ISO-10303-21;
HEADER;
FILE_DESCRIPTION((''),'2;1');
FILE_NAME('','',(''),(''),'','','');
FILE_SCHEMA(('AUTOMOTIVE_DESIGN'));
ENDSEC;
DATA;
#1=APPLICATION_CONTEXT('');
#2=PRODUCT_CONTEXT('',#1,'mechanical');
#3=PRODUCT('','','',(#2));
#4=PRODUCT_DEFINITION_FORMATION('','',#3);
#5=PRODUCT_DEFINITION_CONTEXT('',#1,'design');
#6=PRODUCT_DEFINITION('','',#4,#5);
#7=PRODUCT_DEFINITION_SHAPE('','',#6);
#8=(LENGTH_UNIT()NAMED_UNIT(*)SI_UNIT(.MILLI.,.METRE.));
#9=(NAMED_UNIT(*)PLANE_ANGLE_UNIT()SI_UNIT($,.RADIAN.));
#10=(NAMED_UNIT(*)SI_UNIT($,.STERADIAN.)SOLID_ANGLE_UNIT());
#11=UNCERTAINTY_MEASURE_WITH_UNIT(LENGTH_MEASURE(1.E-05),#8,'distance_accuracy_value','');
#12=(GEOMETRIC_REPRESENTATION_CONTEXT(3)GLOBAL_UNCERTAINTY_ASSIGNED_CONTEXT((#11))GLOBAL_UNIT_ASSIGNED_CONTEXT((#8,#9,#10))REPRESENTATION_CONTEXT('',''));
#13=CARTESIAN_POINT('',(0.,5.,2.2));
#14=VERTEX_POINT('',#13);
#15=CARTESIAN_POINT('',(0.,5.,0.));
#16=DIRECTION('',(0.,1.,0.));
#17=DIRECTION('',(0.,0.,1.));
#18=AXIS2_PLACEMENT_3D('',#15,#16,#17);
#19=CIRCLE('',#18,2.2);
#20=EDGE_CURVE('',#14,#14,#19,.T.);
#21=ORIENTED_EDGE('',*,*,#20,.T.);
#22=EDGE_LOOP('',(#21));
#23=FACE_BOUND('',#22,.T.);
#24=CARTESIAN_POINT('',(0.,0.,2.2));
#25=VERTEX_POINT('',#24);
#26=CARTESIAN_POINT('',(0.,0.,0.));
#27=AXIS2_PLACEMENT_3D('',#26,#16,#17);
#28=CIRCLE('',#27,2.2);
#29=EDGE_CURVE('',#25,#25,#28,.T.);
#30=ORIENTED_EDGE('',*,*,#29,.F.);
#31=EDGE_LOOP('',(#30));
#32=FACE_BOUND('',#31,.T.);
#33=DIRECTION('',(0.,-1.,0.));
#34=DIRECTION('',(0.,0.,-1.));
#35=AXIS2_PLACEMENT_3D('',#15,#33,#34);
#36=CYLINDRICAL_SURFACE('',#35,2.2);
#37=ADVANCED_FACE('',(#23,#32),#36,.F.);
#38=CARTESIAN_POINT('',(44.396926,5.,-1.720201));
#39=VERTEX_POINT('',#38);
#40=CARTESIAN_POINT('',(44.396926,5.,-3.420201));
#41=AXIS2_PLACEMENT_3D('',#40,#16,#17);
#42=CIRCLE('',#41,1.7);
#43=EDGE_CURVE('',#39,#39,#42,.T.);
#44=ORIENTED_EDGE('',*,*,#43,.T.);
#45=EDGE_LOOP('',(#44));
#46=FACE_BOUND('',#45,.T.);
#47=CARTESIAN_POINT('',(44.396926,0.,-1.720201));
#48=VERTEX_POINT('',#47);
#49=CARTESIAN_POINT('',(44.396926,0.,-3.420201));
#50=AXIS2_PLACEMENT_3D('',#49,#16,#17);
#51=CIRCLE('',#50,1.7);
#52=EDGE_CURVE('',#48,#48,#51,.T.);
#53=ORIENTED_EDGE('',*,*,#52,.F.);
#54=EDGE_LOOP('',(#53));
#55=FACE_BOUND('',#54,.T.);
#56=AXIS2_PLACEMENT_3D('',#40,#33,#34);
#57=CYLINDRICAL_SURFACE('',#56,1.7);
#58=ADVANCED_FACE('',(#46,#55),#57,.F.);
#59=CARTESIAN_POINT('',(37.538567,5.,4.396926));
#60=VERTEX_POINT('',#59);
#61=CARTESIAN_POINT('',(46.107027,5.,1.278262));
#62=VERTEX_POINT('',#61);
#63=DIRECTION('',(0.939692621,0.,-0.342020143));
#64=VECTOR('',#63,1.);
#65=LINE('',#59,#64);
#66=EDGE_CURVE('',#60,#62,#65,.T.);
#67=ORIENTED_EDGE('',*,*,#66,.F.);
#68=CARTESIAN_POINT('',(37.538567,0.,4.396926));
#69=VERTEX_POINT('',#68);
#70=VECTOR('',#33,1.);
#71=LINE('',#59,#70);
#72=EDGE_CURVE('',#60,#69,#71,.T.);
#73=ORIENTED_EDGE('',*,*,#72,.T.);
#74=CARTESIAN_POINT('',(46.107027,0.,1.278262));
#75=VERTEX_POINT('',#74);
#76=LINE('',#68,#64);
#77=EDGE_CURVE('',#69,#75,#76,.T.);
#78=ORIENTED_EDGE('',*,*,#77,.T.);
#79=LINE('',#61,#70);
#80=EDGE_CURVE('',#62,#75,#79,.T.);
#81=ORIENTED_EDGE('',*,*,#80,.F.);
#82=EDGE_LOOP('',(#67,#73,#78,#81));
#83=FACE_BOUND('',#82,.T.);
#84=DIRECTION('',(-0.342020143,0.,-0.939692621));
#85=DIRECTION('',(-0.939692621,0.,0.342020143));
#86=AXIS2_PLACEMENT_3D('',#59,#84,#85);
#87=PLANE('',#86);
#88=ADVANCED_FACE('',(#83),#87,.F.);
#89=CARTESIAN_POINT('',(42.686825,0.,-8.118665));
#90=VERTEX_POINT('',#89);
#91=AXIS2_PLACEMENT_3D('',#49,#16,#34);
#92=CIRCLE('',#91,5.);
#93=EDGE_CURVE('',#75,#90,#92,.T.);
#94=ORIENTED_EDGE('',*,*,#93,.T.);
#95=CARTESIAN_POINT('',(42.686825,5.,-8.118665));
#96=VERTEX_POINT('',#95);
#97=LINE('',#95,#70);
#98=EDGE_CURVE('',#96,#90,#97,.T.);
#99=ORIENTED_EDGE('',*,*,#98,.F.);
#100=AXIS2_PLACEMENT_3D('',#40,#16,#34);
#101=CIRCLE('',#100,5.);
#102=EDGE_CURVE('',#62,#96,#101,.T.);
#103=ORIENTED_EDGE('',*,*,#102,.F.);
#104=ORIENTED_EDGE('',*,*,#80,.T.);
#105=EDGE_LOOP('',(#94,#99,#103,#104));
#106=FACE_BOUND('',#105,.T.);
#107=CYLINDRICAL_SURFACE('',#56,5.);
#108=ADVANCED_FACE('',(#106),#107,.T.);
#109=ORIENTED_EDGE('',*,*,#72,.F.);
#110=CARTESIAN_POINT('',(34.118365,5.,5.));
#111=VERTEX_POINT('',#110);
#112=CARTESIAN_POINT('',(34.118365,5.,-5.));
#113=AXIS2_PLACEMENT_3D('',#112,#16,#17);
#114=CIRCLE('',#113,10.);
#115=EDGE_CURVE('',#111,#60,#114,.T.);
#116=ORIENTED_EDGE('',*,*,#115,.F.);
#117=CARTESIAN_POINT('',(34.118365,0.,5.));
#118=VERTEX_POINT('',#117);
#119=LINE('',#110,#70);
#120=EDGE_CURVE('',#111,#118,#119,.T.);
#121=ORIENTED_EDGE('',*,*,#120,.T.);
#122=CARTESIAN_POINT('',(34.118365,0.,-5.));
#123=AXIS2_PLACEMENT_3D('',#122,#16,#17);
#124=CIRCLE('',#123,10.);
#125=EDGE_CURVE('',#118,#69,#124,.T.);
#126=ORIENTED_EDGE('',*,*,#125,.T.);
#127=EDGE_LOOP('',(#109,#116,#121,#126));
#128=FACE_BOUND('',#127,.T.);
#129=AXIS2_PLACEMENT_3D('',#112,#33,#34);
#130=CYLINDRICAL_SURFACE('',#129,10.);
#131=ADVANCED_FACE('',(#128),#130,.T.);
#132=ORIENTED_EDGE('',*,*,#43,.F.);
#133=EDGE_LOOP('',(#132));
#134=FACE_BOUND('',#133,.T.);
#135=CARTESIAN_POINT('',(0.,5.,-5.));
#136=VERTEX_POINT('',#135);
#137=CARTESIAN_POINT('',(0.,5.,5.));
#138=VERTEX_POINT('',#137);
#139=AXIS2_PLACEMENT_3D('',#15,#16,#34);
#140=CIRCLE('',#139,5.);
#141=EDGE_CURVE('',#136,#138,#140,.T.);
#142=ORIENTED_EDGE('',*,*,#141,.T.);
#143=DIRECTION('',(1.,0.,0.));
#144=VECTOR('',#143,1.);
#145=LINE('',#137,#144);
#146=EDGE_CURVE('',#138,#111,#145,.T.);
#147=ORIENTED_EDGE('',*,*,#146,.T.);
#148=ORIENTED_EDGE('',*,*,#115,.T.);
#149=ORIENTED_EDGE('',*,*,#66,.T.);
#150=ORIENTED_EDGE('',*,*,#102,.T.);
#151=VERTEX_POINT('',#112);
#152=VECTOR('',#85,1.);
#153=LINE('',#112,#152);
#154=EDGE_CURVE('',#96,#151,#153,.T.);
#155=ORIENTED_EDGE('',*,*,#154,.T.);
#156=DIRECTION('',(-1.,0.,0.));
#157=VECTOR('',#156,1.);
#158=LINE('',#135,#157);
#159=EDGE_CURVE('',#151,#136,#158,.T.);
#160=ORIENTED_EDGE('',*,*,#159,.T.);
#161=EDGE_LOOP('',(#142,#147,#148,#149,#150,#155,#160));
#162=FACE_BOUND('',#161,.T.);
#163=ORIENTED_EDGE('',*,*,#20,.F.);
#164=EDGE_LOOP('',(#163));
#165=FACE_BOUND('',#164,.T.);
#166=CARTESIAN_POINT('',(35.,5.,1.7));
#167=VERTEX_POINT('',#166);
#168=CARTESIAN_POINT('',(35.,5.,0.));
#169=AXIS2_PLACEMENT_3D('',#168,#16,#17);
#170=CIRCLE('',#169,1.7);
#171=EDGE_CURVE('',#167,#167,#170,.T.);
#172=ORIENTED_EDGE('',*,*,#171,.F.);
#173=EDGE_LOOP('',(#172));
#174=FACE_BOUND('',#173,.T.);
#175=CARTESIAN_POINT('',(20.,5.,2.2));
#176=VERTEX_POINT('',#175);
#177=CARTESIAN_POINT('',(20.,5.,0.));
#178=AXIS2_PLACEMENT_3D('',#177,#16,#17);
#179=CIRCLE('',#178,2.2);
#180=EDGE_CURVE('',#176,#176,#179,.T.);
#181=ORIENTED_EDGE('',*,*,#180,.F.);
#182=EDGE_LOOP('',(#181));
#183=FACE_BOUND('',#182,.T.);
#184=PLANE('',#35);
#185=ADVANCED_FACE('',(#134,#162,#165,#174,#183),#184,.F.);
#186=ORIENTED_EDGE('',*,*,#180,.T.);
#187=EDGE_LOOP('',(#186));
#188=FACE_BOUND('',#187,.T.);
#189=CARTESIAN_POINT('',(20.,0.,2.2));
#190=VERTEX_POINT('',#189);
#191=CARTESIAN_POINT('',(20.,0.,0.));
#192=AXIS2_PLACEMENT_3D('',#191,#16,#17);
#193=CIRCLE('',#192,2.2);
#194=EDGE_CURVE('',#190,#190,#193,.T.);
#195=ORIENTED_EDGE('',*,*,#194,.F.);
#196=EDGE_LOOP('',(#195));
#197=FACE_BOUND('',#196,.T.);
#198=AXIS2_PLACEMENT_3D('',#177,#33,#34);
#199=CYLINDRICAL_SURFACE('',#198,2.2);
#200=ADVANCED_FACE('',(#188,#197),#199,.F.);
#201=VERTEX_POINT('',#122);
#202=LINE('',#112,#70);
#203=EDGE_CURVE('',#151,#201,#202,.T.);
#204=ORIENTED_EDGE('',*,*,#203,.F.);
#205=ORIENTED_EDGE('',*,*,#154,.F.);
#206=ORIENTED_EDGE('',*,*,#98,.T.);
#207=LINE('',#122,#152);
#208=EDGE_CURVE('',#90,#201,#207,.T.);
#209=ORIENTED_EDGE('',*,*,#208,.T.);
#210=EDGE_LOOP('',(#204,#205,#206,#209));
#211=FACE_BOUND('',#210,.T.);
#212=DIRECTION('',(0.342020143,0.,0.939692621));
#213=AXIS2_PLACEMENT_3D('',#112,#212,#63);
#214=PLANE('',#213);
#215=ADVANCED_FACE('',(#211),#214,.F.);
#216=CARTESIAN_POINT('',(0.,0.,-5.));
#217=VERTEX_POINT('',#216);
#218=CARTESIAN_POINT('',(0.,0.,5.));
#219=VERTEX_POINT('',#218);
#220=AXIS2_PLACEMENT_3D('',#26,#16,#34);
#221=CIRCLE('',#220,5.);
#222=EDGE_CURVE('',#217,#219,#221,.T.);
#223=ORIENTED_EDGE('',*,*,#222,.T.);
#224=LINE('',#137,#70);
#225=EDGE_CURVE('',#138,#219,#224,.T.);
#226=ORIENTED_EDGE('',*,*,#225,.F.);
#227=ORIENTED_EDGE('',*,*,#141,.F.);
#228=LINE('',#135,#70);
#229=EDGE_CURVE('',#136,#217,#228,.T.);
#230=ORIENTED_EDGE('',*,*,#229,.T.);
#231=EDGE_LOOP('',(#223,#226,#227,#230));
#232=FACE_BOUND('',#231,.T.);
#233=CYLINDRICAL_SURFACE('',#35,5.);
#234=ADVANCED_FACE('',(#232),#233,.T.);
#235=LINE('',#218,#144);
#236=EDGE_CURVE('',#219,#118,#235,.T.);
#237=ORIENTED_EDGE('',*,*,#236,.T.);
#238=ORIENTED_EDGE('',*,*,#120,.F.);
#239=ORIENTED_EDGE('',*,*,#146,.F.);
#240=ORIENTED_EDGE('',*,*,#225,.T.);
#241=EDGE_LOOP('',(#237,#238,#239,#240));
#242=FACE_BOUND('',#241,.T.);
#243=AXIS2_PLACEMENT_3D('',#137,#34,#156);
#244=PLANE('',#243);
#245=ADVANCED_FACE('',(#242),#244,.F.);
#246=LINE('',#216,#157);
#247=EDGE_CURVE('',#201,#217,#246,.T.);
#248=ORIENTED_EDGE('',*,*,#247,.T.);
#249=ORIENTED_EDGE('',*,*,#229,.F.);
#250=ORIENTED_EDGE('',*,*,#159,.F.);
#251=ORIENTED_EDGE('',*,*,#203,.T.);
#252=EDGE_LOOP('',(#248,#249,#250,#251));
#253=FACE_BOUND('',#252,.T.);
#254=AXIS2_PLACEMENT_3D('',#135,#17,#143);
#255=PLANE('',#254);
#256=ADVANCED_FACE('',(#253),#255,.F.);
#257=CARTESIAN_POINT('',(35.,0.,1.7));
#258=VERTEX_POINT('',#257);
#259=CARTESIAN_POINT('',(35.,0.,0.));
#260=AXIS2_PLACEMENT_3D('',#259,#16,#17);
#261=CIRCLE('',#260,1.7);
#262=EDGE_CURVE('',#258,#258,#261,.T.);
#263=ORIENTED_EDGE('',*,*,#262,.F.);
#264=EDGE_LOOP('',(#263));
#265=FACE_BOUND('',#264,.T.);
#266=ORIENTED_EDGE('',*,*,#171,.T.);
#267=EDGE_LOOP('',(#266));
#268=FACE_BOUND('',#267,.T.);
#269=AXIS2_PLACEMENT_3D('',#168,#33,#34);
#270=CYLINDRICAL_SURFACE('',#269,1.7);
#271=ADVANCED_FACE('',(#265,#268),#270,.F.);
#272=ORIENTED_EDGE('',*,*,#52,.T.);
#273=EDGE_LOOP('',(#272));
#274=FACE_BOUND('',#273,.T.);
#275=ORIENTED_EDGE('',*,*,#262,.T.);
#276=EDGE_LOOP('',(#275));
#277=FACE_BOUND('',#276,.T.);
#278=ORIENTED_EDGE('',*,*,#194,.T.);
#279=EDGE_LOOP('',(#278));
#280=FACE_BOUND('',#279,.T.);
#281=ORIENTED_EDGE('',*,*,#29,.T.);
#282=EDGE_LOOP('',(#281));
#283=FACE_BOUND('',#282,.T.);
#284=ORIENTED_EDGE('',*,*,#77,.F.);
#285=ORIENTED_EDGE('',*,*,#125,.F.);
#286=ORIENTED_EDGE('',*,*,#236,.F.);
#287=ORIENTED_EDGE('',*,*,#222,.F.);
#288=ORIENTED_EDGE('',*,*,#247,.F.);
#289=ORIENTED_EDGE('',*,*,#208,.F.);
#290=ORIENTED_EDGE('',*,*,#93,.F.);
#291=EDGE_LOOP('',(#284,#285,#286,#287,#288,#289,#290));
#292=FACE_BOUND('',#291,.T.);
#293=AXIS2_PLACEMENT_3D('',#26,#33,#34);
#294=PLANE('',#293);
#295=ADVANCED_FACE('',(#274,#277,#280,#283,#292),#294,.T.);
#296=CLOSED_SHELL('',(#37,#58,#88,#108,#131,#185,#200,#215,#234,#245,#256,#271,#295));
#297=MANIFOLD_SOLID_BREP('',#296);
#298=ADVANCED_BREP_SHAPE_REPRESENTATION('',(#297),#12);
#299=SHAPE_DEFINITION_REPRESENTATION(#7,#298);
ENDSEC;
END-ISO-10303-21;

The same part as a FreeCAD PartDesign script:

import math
import FreeCAD as App
import Part
import Sketcher
from FreeCAD import Vector
Q = App.Units.Quantity

doc = App.newDocument("Part")
params = doc.addObject("Spreadsheet::Sheet", "Params")
for row, (alias, value) in enumerate([
    ("sketch1_radius", "5 mm"),
    ("sketch1_diameter", "3.4 mm"),
    ("sketch1_diameter2", "4.4 mm"),
    ("pad1_length", "5 mm"),
], start=1):
    params.set(f"A{row}", alias)
    params.set(f"B{row}", "=" + value)
    params.setAlias(f"B{row}", alias)

body = doc.addObject("PartDesign::Body", "Body")

# Sketch on XZ plane
sketch1 = body.newObject("Sketcher::SketchObject", "Sketch")
sketch1.AttachmentSupport = (doc.getObject("XZ_Plane"), [""])
sketch1.MapMode = "FlatFace"
sketch1.addGeometry([
    Part.LineSegment(Vector(34.118365, -5, 0), Vector(0, -5, 0)),  # 0
    Part.ArcOfCircle(Part.Circle(Vector(0, 0, 0), Vector(0, 0, 1), 5), math.radians(90), math.radians(270)),  # 1
    Part.LineSegment(Vector(0, 5, 0), Vector(34.118365, 5, 0)),  # 2
    Part.ArcOfCircle(Part.Circle(Vector(34.118365, -5, 0), Vector(0, 0, 1), 10), math.radians(70), math.radians(90)),  # 3
    Part.LineSegment(Vector(37.538567, 4.396926, 0), Vector(46.107027, 1.278262, 0)),  # 4
    Part.ArcOfCircle(Part.Circle(Vector(44.396926, -3.420201, 0), Vector(0, 0, 1), 5), math.radians(-110), math.radians(70)),  # 5
    Part.LineSegment(Vector(42.686825, -8.118665, 0), Vector(34.118365, -5, 0)),  # 6
    Part.Circle(Vector(35, 0, 0), Vector(0, 0, 1), 1.7),  # 7
    Part.Circle(Vector(20, 0, 0), Vector(0, 0, 1), 2.2),  # 8
    Part.Circle(Vector(0, 0, 0), Vector(0, 0, 1), 2.2),  # 9
    Part.Circle(Vector(44.396926, -3.420201, 0), Vector(0, 0, 1), 1.7),  # 10
], False)
sketch1.addConstraint([
    Sketcher.Constraint("Tangent", 0, 2, 1, 2),
    Sketcher.Constraint("Tangent", 1, 1, 2, 1),
    Sketcher.Constraint("Tangent", 2, 2, 3, 2),
    Sketcher.Constraint("Tangent", 3, 1, 4, 1),
    Sketcher.Constraint("Tangent", 4, 2, 5, 2),
    Sketcher.Constraint("Tangent", 5, 1, 6, 1),
    Sketcher.Constraint("Coincident", 6, 2, 0, 1),
    Sketcher.Constraint("Horizontal", 0),
    Sketcher.Constraint("Horizontal", 2),
    Sketcher.Constraint("Coincident", 1, 3, -1, 1),
    Sketcher.Constraint("Coincident", 9, 3, -1, 1),
    Sketcher.Constraint("Coincident", 10, 3, 5, 3),
    Sketcher.Constraint("Coincident", 6, 2, 3, 3),
    Sketcher.Constraint("Equal", 1, 5),
    Sketcher.Constraint("Equal", 8, 9),
    Sketcher.Constraint("Equal", 7, 10),
    Sketcher.Constraint("PointOnObject", 7, 3, -1),
    Sketcher.Constraint("PointOnObject", 8, 3, -1),
    Sketcher.Constraint("Radius", 1, 5.0),
    Sketcher.Constraint("Diameter", 7, 3.4),
    Sketcher.Constraint("Diameter", 8, 4.4),
    Sketcher.Constraint("Angle", 4, Q("-20 deg")),
    Sketcher.Constraint("DistanceX", -1, 1, 7, 3, 35.0),
    Sketcher.Constraint("DistanceX", -1, 1, 8, 3, 20.0),
    Sketcher.Constraint("DistanceY", 5, 3, -1, 1, 3.420201),
    Sketcher.Constraint("DistanceX", 0, 2, 0, 1, 34.118365),
])
sketch1.setExpression("Constraints[18]", "Params.sketch1_radius")
sketch1.setExpression("Constraints[19]", "Params.sketch1_diameter")
sketch1.setExpression("Constraints[20]", "Params.sketch1_diameter2")
pad1 = body.newObject("PartDesign::Pad", "Pad")
pad1.Profile = sketch1
pad1.setExpression("Length", "Params.pad1_length")
pad1.Reversed = True

doc.recompute()
